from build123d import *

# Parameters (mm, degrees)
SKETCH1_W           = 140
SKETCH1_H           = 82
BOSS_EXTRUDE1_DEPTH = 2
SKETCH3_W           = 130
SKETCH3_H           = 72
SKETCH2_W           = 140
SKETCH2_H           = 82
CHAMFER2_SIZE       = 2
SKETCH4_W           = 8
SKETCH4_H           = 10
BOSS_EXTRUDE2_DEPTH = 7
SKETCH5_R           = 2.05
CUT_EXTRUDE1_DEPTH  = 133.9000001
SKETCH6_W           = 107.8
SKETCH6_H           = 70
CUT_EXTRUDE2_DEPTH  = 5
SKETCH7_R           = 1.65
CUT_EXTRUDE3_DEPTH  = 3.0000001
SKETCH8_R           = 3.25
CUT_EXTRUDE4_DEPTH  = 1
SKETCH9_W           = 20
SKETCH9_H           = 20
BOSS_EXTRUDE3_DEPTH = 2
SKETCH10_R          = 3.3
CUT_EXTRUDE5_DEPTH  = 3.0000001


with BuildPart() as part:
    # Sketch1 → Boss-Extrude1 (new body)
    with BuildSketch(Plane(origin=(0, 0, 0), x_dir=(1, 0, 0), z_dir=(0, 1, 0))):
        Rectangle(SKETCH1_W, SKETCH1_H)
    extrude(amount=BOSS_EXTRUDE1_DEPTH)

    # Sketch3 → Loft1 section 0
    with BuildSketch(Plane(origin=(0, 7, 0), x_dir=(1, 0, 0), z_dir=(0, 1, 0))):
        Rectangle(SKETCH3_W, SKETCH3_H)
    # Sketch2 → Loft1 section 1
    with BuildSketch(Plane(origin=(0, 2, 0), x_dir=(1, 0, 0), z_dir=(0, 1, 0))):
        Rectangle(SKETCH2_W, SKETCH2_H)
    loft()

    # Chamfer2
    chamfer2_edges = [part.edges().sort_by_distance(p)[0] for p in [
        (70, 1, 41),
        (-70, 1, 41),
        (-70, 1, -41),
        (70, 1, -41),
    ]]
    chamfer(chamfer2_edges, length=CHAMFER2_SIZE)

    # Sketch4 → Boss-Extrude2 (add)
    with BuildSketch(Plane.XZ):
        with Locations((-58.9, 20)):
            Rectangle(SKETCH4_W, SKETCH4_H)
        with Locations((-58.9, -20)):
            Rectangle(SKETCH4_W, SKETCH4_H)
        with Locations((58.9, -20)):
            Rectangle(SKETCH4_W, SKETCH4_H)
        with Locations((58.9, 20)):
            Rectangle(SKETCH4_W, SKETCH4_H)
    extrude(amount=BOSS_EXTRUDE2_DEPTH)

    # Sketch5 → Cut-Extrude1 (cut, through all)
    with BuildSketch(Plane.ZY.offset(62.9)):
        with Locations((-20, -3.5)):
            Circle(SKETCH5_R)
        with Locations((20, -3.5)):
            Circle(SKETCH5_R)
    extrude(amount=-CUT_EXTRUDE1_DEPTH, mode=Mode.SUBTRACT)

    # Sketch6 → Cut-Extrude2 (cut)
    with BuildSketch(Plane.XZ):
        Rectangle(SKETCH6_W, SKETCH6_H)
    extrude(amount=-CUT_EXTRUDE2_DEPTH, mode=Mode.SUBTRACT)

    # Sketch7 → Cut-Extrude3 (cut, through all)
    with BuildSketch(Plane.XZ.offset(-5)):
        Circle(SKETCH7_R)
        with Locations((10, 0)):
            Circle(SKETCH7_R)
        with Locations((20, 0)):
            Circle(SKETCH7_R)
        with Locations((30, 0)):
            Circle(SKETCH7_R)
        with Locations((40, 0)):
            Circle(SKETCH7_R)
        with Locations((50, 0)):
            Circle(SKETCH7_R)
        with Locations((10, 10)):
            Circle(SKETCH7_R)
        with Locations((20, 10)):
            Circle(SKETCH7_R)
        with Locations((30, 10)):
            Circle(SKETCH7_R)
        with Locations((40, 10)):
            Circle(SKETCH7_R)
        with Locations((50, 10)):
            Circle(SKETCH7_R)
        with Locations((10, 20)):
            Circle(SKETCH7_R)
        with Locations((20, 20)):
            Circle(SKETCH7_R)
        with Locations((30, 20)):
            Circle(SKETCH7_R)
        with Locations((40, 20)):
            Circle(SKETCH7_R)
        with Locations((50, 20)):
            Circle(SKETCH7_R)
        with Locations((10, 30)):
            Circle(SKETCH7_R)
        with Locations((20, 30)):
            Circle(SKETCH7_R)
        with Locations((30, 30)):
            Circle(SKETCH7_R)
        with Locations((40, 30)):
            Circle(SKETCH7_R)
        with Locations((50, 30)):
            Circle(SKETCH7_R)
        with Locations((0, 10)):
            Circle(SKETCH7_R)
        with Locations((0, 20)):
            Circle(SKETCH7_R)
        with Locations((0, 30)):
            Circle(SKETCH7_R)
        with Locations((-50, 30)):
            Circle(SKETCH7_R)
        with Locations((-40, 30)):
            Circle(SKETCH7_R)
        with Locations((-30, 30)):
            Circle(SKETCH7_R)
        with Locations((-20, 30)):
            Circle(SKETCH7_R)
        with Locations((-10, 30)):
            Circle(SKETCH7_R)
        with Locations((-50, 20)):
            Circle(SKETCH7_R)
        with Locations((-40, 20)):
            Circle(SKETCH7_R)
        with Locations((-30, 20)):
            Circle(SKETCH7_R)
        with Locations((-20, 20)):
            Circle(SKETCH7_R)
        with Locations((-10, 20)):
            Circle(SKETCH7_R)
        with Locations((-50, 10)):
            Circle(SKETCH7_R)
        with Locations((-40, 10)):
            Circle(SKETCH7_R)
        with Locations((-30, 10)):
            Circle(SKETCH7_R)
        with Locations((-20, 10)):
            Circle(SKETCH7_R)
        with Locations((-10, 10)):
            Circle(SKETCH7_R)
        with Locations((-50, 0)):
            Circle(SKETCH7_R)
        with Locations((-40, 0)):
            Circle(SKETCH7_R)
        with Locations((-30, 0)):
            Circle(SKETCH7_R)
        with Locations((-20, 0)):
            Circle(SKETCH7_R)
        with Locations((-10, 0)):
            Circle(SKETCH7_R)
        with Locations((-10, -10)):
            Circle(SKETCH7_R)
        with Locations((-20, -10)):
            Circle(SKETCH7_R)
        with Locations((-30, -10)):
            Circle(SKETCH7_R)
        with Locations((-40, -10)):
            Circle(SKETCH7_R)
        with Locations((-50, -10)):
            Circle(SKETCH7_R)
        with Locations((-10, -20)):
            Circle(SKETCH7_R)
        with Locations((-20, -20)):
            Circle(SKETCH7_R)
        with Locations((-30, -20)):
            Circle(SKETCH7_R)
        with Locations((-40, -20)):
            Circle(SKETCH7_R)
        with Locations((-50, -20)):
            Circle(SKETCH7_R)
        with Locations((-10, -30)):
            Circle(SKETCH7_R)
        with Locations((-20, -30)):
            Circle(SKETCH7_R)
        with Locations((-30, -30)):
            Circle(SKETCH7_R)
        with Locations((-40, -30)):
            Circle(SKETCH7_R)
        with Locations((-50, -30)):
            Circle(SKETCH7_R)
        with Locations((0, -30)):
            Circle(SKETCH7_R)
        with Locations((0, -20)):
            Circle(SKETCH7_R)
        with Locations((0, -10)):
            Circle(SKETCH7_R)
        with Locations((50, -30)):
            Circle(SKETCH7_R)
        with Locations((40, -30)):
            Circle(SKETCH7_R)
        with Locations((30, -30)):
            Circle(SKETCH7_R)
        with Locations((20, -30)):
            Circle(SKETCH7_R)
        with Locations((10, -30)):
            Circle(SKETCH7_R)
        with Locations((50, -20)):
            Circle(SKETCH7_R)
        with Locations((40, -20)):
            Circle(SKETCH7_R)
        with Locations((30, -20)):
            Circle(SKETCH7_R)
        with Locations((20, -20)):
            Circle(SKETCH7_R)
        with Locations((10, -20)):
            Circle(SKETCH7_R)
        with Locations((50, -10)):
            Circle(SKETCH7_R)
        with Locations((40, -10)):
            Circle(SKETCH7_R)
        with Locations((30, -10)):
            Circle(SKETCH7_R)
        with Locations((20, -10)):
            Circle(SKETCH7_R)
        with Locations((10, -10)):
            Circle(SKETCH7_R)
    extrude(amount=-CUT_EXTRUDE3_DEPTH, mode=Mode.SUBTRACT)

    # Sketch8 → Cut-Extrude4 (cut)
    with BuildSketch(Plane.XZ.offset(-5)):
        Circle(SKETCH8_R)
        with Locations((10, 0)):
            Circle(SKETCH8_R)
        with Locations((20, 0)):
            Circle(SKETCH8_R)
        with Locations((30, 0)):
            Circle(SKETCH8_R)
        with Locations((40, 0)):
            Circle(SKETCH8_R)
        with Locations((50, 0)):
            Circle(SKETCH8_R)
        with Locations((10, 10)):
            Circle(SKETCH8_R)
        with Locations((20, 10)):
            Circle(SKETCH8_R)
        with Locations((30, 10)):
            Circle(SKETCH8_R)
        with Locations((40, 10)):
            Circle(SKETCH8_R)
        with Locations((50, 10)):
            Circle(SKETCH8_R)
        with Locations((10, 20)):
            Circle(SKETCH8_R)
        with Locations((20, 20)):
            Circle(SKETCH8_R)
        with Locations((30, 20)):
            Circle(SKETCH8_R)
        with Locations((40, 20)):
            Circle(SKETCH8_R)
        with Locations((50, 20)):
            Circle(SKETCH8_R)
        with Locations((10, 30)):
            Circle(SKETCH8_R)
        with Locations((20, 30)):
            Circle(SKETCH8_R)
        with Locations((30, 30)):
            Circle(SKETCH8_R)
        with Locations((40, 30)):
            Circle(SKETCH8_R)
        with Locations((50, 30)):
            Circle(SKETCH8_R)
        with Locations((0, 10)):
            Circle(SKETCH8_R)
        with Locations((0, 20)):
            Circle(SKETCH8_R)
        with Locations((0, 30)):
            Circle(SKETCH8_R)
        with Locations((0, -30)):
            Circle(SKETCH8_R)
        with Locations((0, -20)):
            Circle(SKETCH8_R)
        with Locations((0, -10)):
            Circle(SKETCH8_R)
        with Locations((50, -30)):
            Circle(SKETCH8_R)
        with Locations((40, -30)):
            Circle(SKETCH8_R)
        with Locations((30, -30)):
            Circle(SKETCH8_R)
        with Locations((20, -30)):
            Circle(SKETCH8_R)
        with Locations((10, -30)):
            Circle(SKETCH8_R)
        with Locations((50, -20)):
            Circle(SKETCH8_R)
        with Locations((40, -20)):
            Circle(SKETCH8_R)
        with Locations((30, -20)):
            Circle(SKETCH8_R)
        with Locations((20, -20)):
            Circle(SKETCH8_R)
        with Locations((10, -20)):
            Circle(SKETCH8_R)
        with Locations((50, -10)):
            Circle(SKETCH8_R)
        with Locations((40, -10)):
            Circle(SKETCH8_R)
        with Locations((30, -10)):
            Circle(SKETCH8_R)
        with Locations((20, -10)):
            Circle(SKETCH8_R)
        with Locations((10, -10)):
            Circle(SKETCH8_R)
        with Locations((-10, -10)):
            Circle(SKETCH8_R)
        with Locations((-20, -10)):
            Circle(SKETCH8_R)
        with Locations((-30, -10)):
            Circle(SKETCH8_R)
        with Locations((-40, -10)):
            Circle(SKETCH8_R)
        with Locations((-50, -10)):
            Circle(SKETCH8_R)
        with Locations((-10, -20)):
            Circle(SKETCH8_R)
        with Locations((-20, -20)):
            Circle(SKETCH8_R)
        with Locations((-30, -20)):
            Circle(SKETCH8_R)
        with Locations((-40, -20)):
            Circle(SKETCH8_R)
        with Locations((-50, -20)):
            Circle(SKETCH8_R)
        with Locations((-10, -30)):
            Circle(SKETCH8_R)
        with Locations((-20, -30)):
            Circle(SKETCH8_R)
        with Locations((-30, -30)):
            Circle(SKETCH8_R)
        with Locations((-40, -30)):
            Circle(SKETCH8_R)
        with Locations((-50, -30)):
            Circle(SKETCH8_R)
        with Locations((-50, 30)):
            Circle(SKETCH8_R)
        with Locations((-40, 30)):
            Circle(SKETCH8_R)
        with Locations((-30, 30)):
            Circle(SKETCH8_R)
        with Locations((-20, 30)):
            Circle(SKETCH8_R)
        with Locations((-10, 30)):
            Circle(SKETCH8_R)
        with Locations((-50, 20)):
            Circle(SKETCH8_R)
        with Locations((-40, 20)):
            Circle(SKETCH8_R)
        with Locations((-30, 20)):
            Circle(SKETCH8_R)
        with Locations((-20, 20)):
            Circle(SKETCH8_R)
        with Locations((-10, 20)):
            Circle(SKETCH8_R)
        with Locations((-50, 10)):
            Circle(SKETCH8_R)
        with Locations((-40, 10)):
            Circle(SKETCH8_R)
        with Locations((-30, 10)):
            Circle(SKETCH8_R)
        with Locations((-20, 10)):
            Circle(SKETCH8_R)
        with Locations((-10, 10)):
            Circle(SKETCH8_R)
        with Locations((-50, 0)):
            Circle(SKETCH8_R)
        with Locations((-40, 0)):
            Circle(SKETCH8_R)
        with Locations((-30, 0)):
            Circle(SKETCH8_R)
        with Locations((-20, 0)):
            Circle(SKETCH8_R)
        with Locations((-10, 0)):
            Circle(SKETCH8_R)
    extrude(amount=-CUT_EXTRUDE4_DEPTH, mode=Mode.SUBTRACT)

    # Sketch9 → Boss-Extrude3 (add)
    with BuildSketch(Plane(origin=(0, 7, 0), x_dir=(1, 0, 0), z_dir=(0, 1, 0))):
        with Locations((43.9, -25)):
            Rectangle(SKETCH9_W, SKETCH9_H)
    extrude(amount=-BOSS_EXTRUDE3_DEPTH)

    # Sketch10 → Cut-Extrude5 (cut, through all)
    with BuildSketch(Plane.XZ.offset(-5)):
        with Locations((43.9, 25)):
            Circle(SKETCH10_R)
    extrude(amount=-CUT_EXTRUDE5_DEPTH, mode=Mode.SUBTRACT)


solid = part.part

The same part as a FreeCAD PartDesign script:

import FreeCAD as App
import Part
import Sketcher
from FreeCAD import Vector


def edges_at(feature, points):
    """Names of the edges that pass closest to the given points."""
    edges = feature.Shape.Edges
    near = lambda p: min(range(len(edges)), key=lambda i: edges[i].distToShape(Part.Vertex(*p))[0])
    return sorted({f"Edge{near(p) + 1}" for p in points})

doc = App.newDocument("Part")
body = doc.addObject("PartDesign::Body", "Body")

sketch1 = body.newObject("Sketcher::SketchObject", "Sketch")
sketch1.AttachmentSupport = (doc.getObject("XZ_Plane"), [""])
sketch1.MapMode = "FlatFace"
sketch1.addGeometry([
    Part.LineSegment(Vector(-70, -41, 0), Vector(-70, 41, 0)),
    Part.LineSegment(Vector(-70, 41, 0), Vector(70, 41, 0)),
    Part.LineSegment(Vector(70, 41, 0), Vector(70, -41, 0)),
    Part.LineSegment(Vector(70, -41, 0), Vector(-70, -41, 0)),
], False)
sketch1.addConstraint([
    Sketcher.Constraint("Coincident", 0, 2, 1, 1),
    Sketcher.Constraint("Coincident", 1, 2, 2, 1),
    Sketcher.Constraint("Coincident", 2, 2, 3, 1),
    Sketcher.Constraint("Coincident", 3, 2, 0, 1),
    Sketcher.Constraint("Vertical", 0),
    Sketcher.Constraint("Horizontal", 1),
    Sketcher.Constraint("Vertical", 2),
    Sketcher.Constraint("Horizontal", 3),
    Sketcher.Constraint("Symmetric", 0, 2, 2, 2, -1, 1),
    Sketcher.Constraint("DistanceX", 1, 1, 1, 2, 140.0),
    Sketcher.Constraint("DistanceY", 0, 1, 0, 2, 82.0),
])
pad1 = body.newObject("PartDesign::Pad", "Pad")
pad1.Profile = sketch1
pad1.Length = 2
pad1.Reversed = True

sketch2 = body.newObject("Sketcher::SketchObject", "Sketch001")
sketch2.AttachmentSupport = (doc.getObject("XZ_Plane"), [""])
sketch2.MapMode = "FlatFace"
sketch2.AttachmentOffset = App.Placement(Vector(0, 0, -7), App.Rotation())
sketch2.addGeometry([
    Part.LineSegment(Vector(-65, -36, 0), Vector(-65, 36, 0)),
    Part.LineSegment(Vector(-65, 36, 0), Vector(65, 36, 0)),
    Part.LineSegment(Vector(65, 36, 0), Vector(65, -36, 0)),
    Part.LineSegment(Vector(65, -36, 0), Vector(-65, -36, 0)),
], False)
sketch2.addConstraint([
    Sketcher.Constraint("Coincident", 0, 2, 1, 1),
    Sketcher.Constraint("Coincident", 1, 2, 2, 1),
    Sketcher.Constraint("Coincident", 2, 2, 3, 1),
    Sketcher.Constraint("Coincident", 3, 2, 0, 1),
    Sketcher.Constraint("Vertical", 0),
    Sketcher.Constraint("Horizontal", 1),
    Sketcher.Constraint("Vertical", 2),
    Sketcher.Constraint("Horizontal", 3),
    Sketcher.Constraint("Symmetric", 0, 2, 2, 2, -1, 1),
    Sketcher.Constraint("DistanceX", 1, 1, 1, 2, 130.0),
    Sketcher.Constraint("DistanceY", 0, 1, 0, 2, 72.0),
])

sketch3 = body.newObject("Sketcher::SketchObject", "Sketch002")
sketch3.AttachmentSupport = (doc.getObject("XZ_Plane"), [""])
sketch3.MapMode = "FlatFace"
sketch3.AttachmentOffset = App.Placement(Vector(0, 0, -2), App.Rotation())
sketch3.addGeometry([
    Part.LineSegment(Vector(-70, -41, 0), Vector(-70, 41, 0)),
    Part.LineSegment(Vector(-70, 41, 0), Vector(70, 41, 0)),
    Part.LineSegment(Vector(70, 41, 0), Vector(70, -41, 0)),
    Part.LineSegment(Vector(70, -41, 0), Vector(-70, -41, 0)),
], False)
sketch3.addConstraint([
    Sketcher.Constraint("Coincident", 0, 2, 1, 1),
    Sketcher.Constraint("Coincident", 1, 2, 2, 1),
    Sketcher.Constraint("Coincident", 2, 2, 3, 1),
    Sketcher.Constraint("Coincident", 3, 2, 0, 1),
    Sketcher.Constraint("Vertical", 0),
    Sketcher.Constraint("Horizontal", 1),
    Sketcher.Constraint("Vertical", 2),
    Sketcher.Constraint("Horizontal", 3),
    Sketcher.Constraint("Symmetric", 0, 2, 2, 2, -1, 1),
    Sketcher.Constraint("DistanceX", 1, 1, 1, 2, 140.0),
    Sketcher.Constraint("DistanceY", 0, 1, 0, 2, 82.0),
])

additiveloft = body.newObject("PartDesign::AdditiveLoft", "AdditiveLoft")
additiveloft.Profile = sketch2
additiveloft.Sections = [sketch3]
doc.recompute()

chamfer = body.newObject("PartDesign::Chamfer", "Chamfer")
chamfer.Base = (additiveloft, edges_at(additiveloft, [
    (70, 1, 41),
    (-70, 1, 41),
    (-70, 1, -41),
    (70, 1, -41),
]))
chamfer.Size = 2

sketch4 = body.newObject("Sketcher::SketchObject", "Sketch003")
sketch4.AttachmentSupport = (doc.getObject("XZ_Plane"), [""])
sketch4.MapMode = "FlatFace"
sketch4.addGeometry([
    Part.LineSegment(Vector(-62.9, 25, 0), Vector(-62.9, 15, 0)),
    Part.LineSegment(Vector(-62.9, 15, 0), Vector(-54.9, 15, 0)),
    Part.LineSegment(Vector(-54.9, 15, 0), Vector(-54.9, 25, 0)),
    Part.LineSegment(Vector(-54.9, 25, 0), Vector(-62.9, 25, 0)),
    Part.LineSegment(Vector(-62.9, -15, 0), Vector(-62.9, -25, 0)),
    Part.LineSegment(Vector(-62.9, -25, 0), Vector(-54.9, -25, 0)),
    Part.LineSegment(Vector(-54.9, -25, 0), Vector(-54.9, -15, 0)),
    Part.LineSegment(Vector(-54.9, -15, 0), Vector(-62.9, -15, 0)),
    Part.LineSegment(Vector(54.9, -15, 0), Vector(54.9, -25, 0)),
    Part.LineSegment(Vector(54.9, -25, 0), Vector(62.9, -25, 0)),
    Part.LineSegment(Vector(62.9, -25, 0), Vector(62.9, -15, 0)),
    Part.LineSegment(Vector(62.9, -15, 0), Vector(54.9, -15, 0)),
    Part.LineSegment(Vector(54.9, 25, 0), Vector(54.9, 15, 0)),
    Part.LineSegment(Vector(54.9, 15, 0), Vector(62.9, 15, 0)),
    Part.LineSegment(Vector(62.9, 15, 0), Vector(62.9, 25, 0)),
    Part.LineSegment(Vector(62.9, 25, 0), Vector(54.9, 25, 0)),
], False)
sketch4.addConstraint([
    Sketcher.Constraint("Coincident", 0, 2, 1, 1),
    Sketcher.Constraint("Coincident", 1, 2, 2, 1),
    Sketcher.Constraint("Coincident", 2, 2, 3, 1),
    Sketcher.Constraint("Coincident", 3, 2, 0, 1),
    Sketcher.Constraint("Coincident", 4, 2, 5, 1),
    Sketcher.Constraint("Coincident", 5, 2, 6, 1),
    Sketcher.Constraint("Coincident", 6, 2, 7, 1),
    Sketcher.Constraint("Coincident", 7, 2, 4, 1),
    Sketcher.Constraint("Coincident", 8, 2, 9, 1),
    Sketcher.Constraint("Coincident", 9, 2, 10, 1),
    Sketcher.Constraint("Coincident", 10, 2, 11, 1),
    Sketcher.Constraint("Coincident", 11, 2, 8, 1),
    Sketcher.Constraint("Coincident", 12, 2, 13, 1),
    Sketcher.Constraint("Coincident", 13, 2, 14, 1),
    Sketcher.Constraint("Coincident", 14, 2, 15, 1),
    Sketcher.Constraint("Coincident", 15, 2, 12, 1),
    Sketcher.Constraint("Vertical", 0),
    Sketcher.Constraint("Horizontal", 1),
    Sketcher.Constraint("Vertical", 2),
    Sketcher.Constraint("Horizontal", 3),
    Sketcher.Constraint("Vertical", 4),
    Sketcher.Constraint("Horizontal", 5),
    Sketcher.Constraint("Vertical", 6),
    Sketcher.Constraint("Horizontal", 7),
    Sketcher.Constraint("Vertical", 8),
    Sketcher.Constraint("Horizontal", 9),
    Sketcher.Constraint("Vertical", 10),
    Sketcher.Constraint("Horizontal", 11),
    Sketcher.Constraint("Vertical", 12),
    Sketcher.Constraint("Horizontal", 13),
    Sketcher.Constraint("Vertical", 14),
    Sketcher.Constraint("Horizontal", 15),
    Sketcher.Constraint("Symmetric", 2, 2, 8, 2, -1, 1),
    Sketcher.Constraint("Symmetric", 0, 2, 10, 2, -1, 1),
    Sketcher.Constraint("Symmetric", 6, 2, 12, 2, -1, 1),
    Sketcher.Constraint("Symmetric", 4, 2, 14, 2, -1, 1),
    Sketcher.Constraint("Symmetric", 5, 2, 8, 2, -2),
    Sketcher.Constraint("Symmetric", 7, 2, 10, 2, -2),
    Sketcher.Constraint("DistanceX", 1, 1, 1, 2, 8.0),
    Sketcher.Constraint("DistanceY", 0, 2, 0, 1, 10.0),
    Sketcher.Constraint("DistanceY", -1, 1, 0, 2, 15.0),
    Sketcher.Constraint("DistanceX", 0, 2, -1, 1, 62.9),
])
pad2 = body.newObject("PartDesign::Pad", "Pad001")
pad2.Profile = sketch4
pad2.Length = 7

sketch5 = body.newObject("Sketcher::SketchObject", "Sketch004")
sketch5.AttachmentSupport = (doc.getObject("YZ_Plane"), [""])
sketch5.MapMode = "FlatFace"
sketch5.AttachmentOffset = App.Placement(Vector(0, 0, -62.9), App.Rotation())
sketch5.addGeometry([
    Part.Circle(Vector(-3.5, -20, 0), Vector(0, 0, 1), 2.05),
    Part.Circle(Vector(-3.5, 20, 0), Vector(0, 0, 1), 2.05),
], False)
sketch5.addConstraint([
    Sketcher.Constraint("Equal", 0, 1),
    Sketcher.Constraint("Symmetric", 0, 3, 1, 3, -1),
    Sketcher.Constraint("Diameter", 0, 4.1),
    Sketcher.Constraint("DistanceY", 0, 3, -1, 1, 20.0),
    Sketcher.Constraint("DistanceX", 0, 3, -1, 1, 3.5),
])
pocket1 = body.newObject("PartDesign::Pocket", "Pocket")
pocket1.Profile = sketch5
pocket1.Type = "ThroughAll"
pocket1.Reversed = True

sketch6 = body.newObject("Sketcher::SketchObject", "Sketch005")
sketch6.AttachmentSupport = (doc.getObject("XZ_Plane"), [""])
sketch6.MapMode = "FlatFace"
sketch6.addGeometry([
    Part.LineSegment(Vector(-53.9, 35, 0), Vector(-53.9, -35, 0)),
    Part.LineSegment(Vector(-53.9, -35, 0), Vector(53.9, -35, 0)),
    Part.LineSegment(Vector(53.9, -35, 0), Vector(53.9, 35, 0)),
    Part.LineSegment(Vector(53.9, 35, 0), Vector(-53.9, 35, 0)),
], False)
sketch6.addConstraint([
    Sketcher.Constraint("Coincident", 0, 2, 1, 1),
    Sketcher.Constraint("Coincident", 1, 2, 2, 1),
    Sketcher.Constraint("Coincident", 2, 2, 3, 1),
    Sketcher.Constraint("Coincident", 3, 2, 0, 1),
    Sketcher.Constraint("Vertical", 0),
    Sketcher.Constraint("Horizontal", 1),
    Sketcher.Constraint("Vertical", 2),
    Sketcher.Constraint("Horizontal", 3),
    Sketcher.Constraint("Symmetric", 0, 2, 2, 2, -1, 1),
    Sketcher.Constraint("DistanceY", 0, 2, 0, 1, 70.0),
    Sketcher.Constraint("DistanceX", 1, 1, 1, 2, 107.8),
])
pocket2 = body.newObject("PartDesign::Pocket", "Pocket001")
pocket2.Profile = sketch6
pocket2.Length = 5

sketch7 = body.newObject("Sketcher::SketchObject", "Sketch006")
sketch7.AttachmentSupport = (doc.getObject("XZ_Plane"), [""])
sketch7.MapMode = "FlatFace"
sketch7.AttachmentOffset = App.Placement(Vector(0, 0, -5), App.Rotation())
sketch7.addGeometry([
    Part.Circle(Vector(0, 0, 0), Vector(0, 0, 1), 1.65),
    Part.Circle(Vector(10, 0, 0), Vector(0, 0, 1), 1.65),
    Part.Circle(Vector(20, 0, 0), Vector(0, 0, 1), 1.65),
    Part.Circle(Vector(30, 0, 0), Vector(0, 0, 1), 1.65),
    Part.Circle(Vector(40, 0, 0), Vector(0, 0, 1), 1.65),
    Part.Circle(Vector(50, 0, 0), Vector(0, 0, 1), 1.65),
    Part.Circle(Vector(10, 10, 0), Vector(0, 0, 1), 1.65),
    Part.Circle(Vector(20, 10, 0), Vector(0, 0, 1), 1.65),
    Part.Circle(Vector(30, 10, 0), Vector(0, 0, 1), 1.65),
    Part.Circle(Vector(40, 10, 0), Vector(0, 0, 1), 1.65),
    Part.Circle(Vector(50, 10, 0), Vector(0, 0, 1), 1.65),
    Part.Circle(Vector(10, 20, 0), Vector(0, 0, 1), 1.65),
    Part.Circle(Vector(20, 20, 0), Vector(0, 0, 1), 1.65),
    Part.Circle(Vector(30, 20, 0), Vector(0, 0, 1), 1.65),
    Part.Circle(Vector(40, 20, 0), Vector(0, 0, 1), 1.65),
    Part.Circle(Vector(50, 20, 0), Vector(0, 0, 1), 1.65),
    Part.Circle(Vector(10, 30, 0), Vector(0, 0, 1), 1.65),
    Part.Circle(Vector(20, 30, 0), Vector(0, 0, 1), 1.65),
    Part.Circle(Vector(30, 30, 0), Vector(0, 0, 1), 1.65),
    Part.Circle(Vector(40, 30, 0), Vector(0, 0, 1), 1.65),
    Part.Circle(Vector(50, 30, 0), Vector(0, 0, 1), 1.65),
    Part.Circle(Vector(0, 10, 0), Vector(0, 0, 1), 1.65),
    Part.Circle(Vector(0, 20, 0), Vector(0, 0, 1), 1.65),
    Part.Circle(Vector(0, 30, 0), Vector(0, 0, 1), 1.65),
    Part.Circle(Vector(-50, 30, 0), Vector(0, 0, 1), 1.65),
    Part.Circle(Vector(-40, 30, 0), Vector(0, 0, 1), 1.65),
    Part.Circle(Vector(-30, 30, 0), Vector(0, 0, 1), 1.65),
    Part.Circle(Vector(-20, 30, 0), Vector(0, 0, 1), 1.65),
    Part.Circle(Vector(-10, 30, 0), Vector(0, 0, 1), 1.65),
    Part.Circle(Vector(-50, 20, 0), Vector(0, 0, 1), 1.65),
    Part.Circle(Vector(-40, 20, 0), Vector(0, 0, 1), 1.65),
    Part.Circle(Vector(-30, 20, 0), Vector(0, 0, 1), 1.65),
    Part.Circle(Vector(-20, 20, 0), Vector(0, 0, 1), 1.65),
    Part.Circle(Vector(-10, 20, 0), Vector(0, 0, 1), 1.65),
    Part.Circle(Vector(-50, 10, 0), Vector(0, 0, 1), 1.65),
    Part.Circle(Vector(-40, 10, 0), Vector(0, 0, 1), 1.65),
    Part.Circle(Vector(-30, 10, 0), Vector(0, 0, 1), 1.65),
    Part.Circle(Vector(-20, 10, 0), Vector(0, 0, 1), 1.65),
    Part.Circle(Vector(-10, 10, 0), Vector(0, 0, 1), 1.65),
    Part.Circle(Vector(-50, 0, 0), Vector(0, 0, 1), 1.65),
    Part.Circle(Vector(-40, 0, 0), Vector(0, 0, 1), 1.65),
    Part.Circle(Vector(-30, 0, 0), Vector(0, 0, 1), 1.65),
    Part.Circle(Vector(-20, 0, 0), Vector(0, 0, 1), 1.65),
    Part.Circle(Vector(-10, 0, 0), Vector(0, 0, 1), 1.65),
    Part.Circle(Vector(-10, -10, 0), Vector(0, 0, 1), 1.65),
    Part.Circle(Vector(-20, -10, 0), Vector(0, 0, 1), 1.65),
    Part.Circle(Vector(-30, -10, 0), Vector(0, 0, 1), 1.65),
    Part.Circle(Vector(-40, -10, 0), Vector(0, 0, 1), 1.65),
    Part.Circle(Vector(-50, -10, 0), Vector(0, 0, 1), 1.65),
    Part.Circle(Vector(-10, -20, 0), Vector(0, 0, 1), 1.65),
    Part.Circle(Vector(-20, -20, 0), Vector(0, 0, 1), 1.65),
    Part.Circle(Vector(-30, -20, 0), Vector(0, 0, 1), 1.65),
    Part.Circle(Vector(-40, -20, 0), Vector(0, 0, 1), 1.65),
    Part.Circle(Vector(-50, -20, 0), Vector(0, 0, 1), 1.65),
    Part.Circle(Vector(-10, -30, 0), Vector(0, 0, 1), 1.65),
    Part.Circle(Vector(-20, -30, 0), Vector(0, 0, 1), 1.65),
    Part.Circle(Vector(-30, -30, 0), Vector(0, 0, 1), 1.65),
    Part.Circle(Vector(-40, -30, 0), Vector(0, 0, 1), 1.65),
    Part.Circle(Vector(-50, -30, 0), Vector(0, 0, 1), 1.65),
    Part.Circle(Vector(0, -30, 0), Vector(0, 0, 1), 1.65),
    Part.Circle(Vector(0, -20, 0), Vector(0, 0, 1), 1.65),
    Part.Circle(Vector(0, -10, 0), Vector(0, 0, 1), 1.65),
    Part.Circle(Vector(50, -30, 0), Vector(0, 0, 1), 1.65),
    Part.Circle(Vector(40, -30, 0), Vector(0, 0, 1), 1.65),
    Part.Circle(Vector(30, -30, 0), Vector(0, 0, 1), 1.65),
    Part.Circle(Vector(20, -30, 0), Vector(0, 0, 1), 1.65),
    Part.Circle(Vector(10, -30, 0), Vector(0, 0, 1), 1.65),
    Part.Circle(Vector(50, -20, 0), Vector(0, 0, 1), 1.65),
    Part.Circle(Vector(40, -20, 0), Vector(0, 0, 1), 1.65),
    Part.Circle(Vector(30, -20, 0), Vector(0, 0, 1), 1.65),
    Part.Circle(Vector(20, -20, 0), Vector(0, 0, 1), 1.65),
    Part.Circle(Vector(10, -20, 0), Vector(0, 0, 1), 1.65),
    Part.Circle(Vector(50, -10, 0), Vector(0, 0, 1), 1.65),
    Part.Circle(Vector(40, -10, 0), Vector(0, 0, 1), 1.65),
    Part.Circle(Vector(30, -10, 0), Vector(0, 0, 1), 1.65),
    Part.Circle(Vector(20, -10, 0), Vector(0, 0, 1), 1.65),
    Part.Circle(Vector(10, -10, 0), Vector(0, 0, 1), 1.65),
], False)
sketch7.addConstraint([
    Sketcher.Constraint("Coincident", 0, 3, -1, 1),
    Sketcher.Constraint("Equal", 0, 1),
    Sketcher.Constraint("Equal", 1, 2),
    Sketcher.Constraint("Equal", 2, 3),
    Sketcher.Constraint("Equal", 3, 4),
    Sketcher.Constraint("Equal", 4, 5),
    Sketcher.Constraint("Equal", 5, 6),
    Sketcher.Constraint("Equal", 6, 7),
    Sketcher.Constraint("Equal", 7, 8),
    Sketcher.Constraint("Equal", 8, 9),
    Sketcher.Constraint("Equal", 9, 10),
    Sketcher.Constraint("Equal", 10, 11),
    Sketcher.Constraint("Equal", 11, 12),
    Sketcher.Constraint("Equal", 12, 13),
    Sketcher.Constraint("Equal", 13, 14),
    Sketcher.Constraint("Equal", 14, 15),
    Sketcher.Constraint("Equal", 15, 16),
    Sketcher.Constraint("Equal", 16, 17),
    Sketcher.Constraint("Equal", 17, 18),
    Sketcher.Constraint("Equal", 18, 19),
    Sketcher.Constraint("Equal", 19, 20),
    Sketcher.Constraint("Equal", 20, 21),
    Sketcher.Constraint("Equal", 21, 22),
    Sketcher.Constraint("Equal", 22, 23),
    Sketcher.Constraint("Equal", 23, 24),
    Sketcher.Constraint("Equal", 24, 25),
    Sketcher.Constraint("Equal", 25, 26),
    Sketcher.Constraint("Equal", 26, 27),
    Sketcher.Constraint("Equal", 27, 28),
    Sketcher.Constraint("Equal", 28, 29),
    Sketcher.Constraint("Equal", 29, 30),
    Sketcher.Constraint("Equal", 30, 31),
    Sketcher.Constraint("Equal", 31, 32),
    Sketcher.Constraint("Equal", 32, 33),
    Sketcher.Constraint("Equal", 33, 34),
    Sketcher.Constraint("Equal", 34, 35),
    Sketcher.Constraint("Equal", 35, 36),
    Sketcher.Constraint("Equal", 36, 37),
    Sketcher.Constraint("Equal", 37, 38),
    Sketcher.Constraint("Equal", 38, 39),
    Sketcher.Constraint("Equal", 39, 40),
    Sketcher.Constraint("Equal", 40, 41),
    Sketcher.Constraint("Equal", 41, 42),
    Sketcher.Constraint("Equal", 42, 43),
    Sketcher.Constraint("Equal", 43, 44),
    Sketcher.Constraint("Equal", 44, 45),
    Sketcher.Constraint("Equal", 45, 46),
    Sketcher.Constraint("Equal", 46, 47),
    Sketcher.Constraint("Equal", 47, 48),
    Sketcher.Constraint("Equal", 48, 49),
    Sketcher.Constraint("Equal", 49, 50),
    Sketcher.Constraint("Equal", 50, 51),
    Sketcher.Constraint("Equal", 51, 52),
    Sketcher.Constraint("Equal", 52, 53),
    Sketcher.Constraint("Equal", 53, 54),
    Sketcher.Constraint("Equal", 54, 55),
    Sketcher.Constraint("Equal", 55, 56),
    Sketcher.Constraint("Equal", 56, 57),
    Sketcher.Constraint("Equal", 57, 58),
    Sketcher.Constraint("Equal", 58, 59),
    Sketcher.Constraint("Equal", 59, 60),
    Sketcher.Constraint("Equal", 60, 61),
    Sketcher.Constraint("Equal", 61, 62),
    Sketcher.Constraint("Equal", 62, 63),
    Sketcher.Constraint("Equal", 63, 64),
    Sketcher.Constraint("Equal", 64, 65),
    Sketcher.Constraint("Equal", 65, 66),
    Sketcher.Constraint("Equal", 66, 67),
    Sketcher.Constraint("Equal", 67, 68),
    Sketcher.Constraint("Equal", 68, 69),
    Sketcher.Constraint("Equal", 69, 70),
    Sketcher.Constraint("Equal", 70, 71),
    Sketcher.Constraint("Equal", 71, 72),
    Sketcher.Constraint("Equal", 72, 73),
    Sketcher.Constraint("Equal", 73, 74),
    Sketcher.Constraint("Equal", 74, 75),
    Sketcher.Constraint("Equal", 75, 76),
    Sketcher.Constraint("Symmetric", 5, 3, 39, 3, -1, 1),
    Sketcher.Constraint("Symmetric", 4, 3, 40, 3, -1, 1),
    Sketcher.Constraint("Symmetric", 3, 3, 41, 3, -1, 1),
    Sketcher.Constraint("Symmetric", 2, 3, 42, 3, -1, 1),
    Sketcher.Constraint("Symmetric", 1, 3, 43, 3, -1, 1),
    Sketcher.Constraint("Symmetric", 6, 3, 44, 3, -1, 1),
    Sketcher.Constraint("Symmetric", 7, 3, 45, 3, -1, 1),
    Sketcher.Constraint("Symmetric", 8, 3, 46, 3, -1, 1),
    Sketcher.Constraint("Symmetric", 9, 3, 47, 3, -1, 1),
    Sketcher.Constraint("Symmetric", 10, 3, 48, 3, -1, 1),
    Sketcher.Constraint("Symmetric", 11, 3, 49, 3, -1, 1),
    Sketcher.Constraint("Symmetric", 12, 3, 50, 3, -1, 1),
    Sketcher.Constraint("Symmetric", 13, 3, 51, 3, -1, 1),
    Sketcher.Constraint("Symmetric", 14, 3, 52, 3, -1, 1),
    Sketcher.Constraint("Symmetric", 15, 3, 53, 3, -1, 1),
    Sketcher.Constraint("Symmetric", 16, 3, 54, 3, -1, 1),
    Sketcher.Constraint("Symmetric", 17, 3, 55, 3, -1, 1),
    Sketcher.Constraint("Symmetric", 18, 3, 56, 3, -1, 1),
    Sketcher.Constraint("Symmetric", 19, 3, 57, 3, -1, 1),
    Sketcher.Constraint("Symmetric", 20, 3, 58, 3, -1, 1),
    Sketcher.Constraint("Symmetric", 23, 3, 59, 3, -1, 1),
    Sketcher.Constraint("Symmetric", 22, 3, 60, 3, -1, 1),
    Sketcher.Constraint("Symmetric", 21, 3, 61, 3, -1, 1),
    Sketcher.Constraint("Symmetric", 24, 3, 62, 3, -1, 1),
    Sketcher.Constraint("Symmetric", 25, 3, 63, 3, -1, 1),
    Sketcher.Constraint("Symmetric", 26, 3, 64, 3, -1, 1),
    Sketcher.Constraint("Symmetric", 27, 3, 65, 3, -1, 1),
    Sketcher.Constraint("Symmetric", 28, 3, 66, 3, -1, 1),
    Sketcher.Constraint("Symmetric", 29, 3, 67, 3, -1, 1),
    Sketcher.Constraint("Symmetric", 30, 3, 68, 3, -1, 1),
    Sketcher.Constraint("Symmetric", 31, 3, 69, 3, -1, 1),
    Sketcher.Constraint("Symmetric", 32, 3, 70, 3, -1, 1),
    Sketcher.Constraint("Symmetric", 33, 3, 71, 3, -1, 1),
    Sketcher.Constraint("Symmetric", 34, 3, 72, 3, -1, 1),
    Sketcher.Constraint("Symmetric", 35, 3, 73, 3, -1, 1),
    Sketcher.Constraint("Symmetric", 36, 3, 74, 3, -1, 1),
    Sketcher.Constraint("Symmetric", 37, 3, 75, 3, -1, 1),
    Sketcher.Constraint("Symmetric", 38, 3, 76, 3, -1, 1),
    Sketcher.Constraint("Symmetric", 20, 3, 24, 3, -2),
    Sketcher.Constraint("Symmetric", 19, 3, 25, 3, -2),
    Sketcher.Constraint("Symmetric", 18, 3, 26, 3, -2),
    Sketcher.Constraint("Symmetric", 17, 3, 27, 3, -2),
    Sketcher.Constraint("Symmetric", 16, 3, 28, 3, -2),
    Sketcher.Constraint("Symmetric", 15, 3, 29, 3, -2),
    Sketcher.Constraint("Symmetric", 14, 3, 30, 3, -2),
    Sketcher.Constraint("Symmetric", 13, 3, 31, 3, -2),
    Sketcher.Constraint("Symmetric", 12, 3, 32, 3, -2),
    Sketcher.Constraint("Symmetric", 11, 3, 33, 3, -2),
    Sketcher.Constraint("Symmetric", 10, 3, 34, 3, -2),
    Sketcher.Constraint("Symmetric", 9, 3, 35, 3, -2),
    Sketcher.Constraint("Symmetric", 8, 3, 36, 3, -2),
    Sketcher.Constraint("Symmetric", 7, 3, 37, 3, -2),
    Sketcher.Constraint("Symmetric", 6, 3, 38, 3, -2),
    Sketcher.Constraint("PointOnObject", 1, 3, -1),
    Sketcher.Constraint("PointOnObject", 2, 3, -1),
    Sketcher.Constraint("PointOnObject", 3, 3, -1),
    Sketcher.Constraint("PointOnObject", 4, 3, -1),
    Sketcher.Constraint("PointOnObject", 5, 3, -1),
    Sketcher.Constraint("PointOnObject", 21, 3, -2),
    Sketcher.Constraint("PointOnObject", 22, 3, -2),
    Sketcher.Constraint("PointOnObject", 23, 3, -2),
    Sketcher.Constraint("Horizontal", 6, 3, 7, 3),
    Sketcher.Constraint("Horizontal", 7, 3, 8, 3),
    Sketcher.Constraint("Horizontal", 8, 3, 9, 3),
    Sketcher.Constraint("Horizontal", 9, 3, 10, 3),
    Sketcher.Constraint("Horizontal", 11, 3, 12, 3),
    Sketcher.Constraint("Horizontal", 12, 3, 13, 3),
    Sketcher.Constraint("Horizontal", 13, 3, 14, 3),
    Sketcher.Constraint("Horizontal", 14, 3, 15, 3),
    Sketcher.Constraint("Horizontal", 16, 3, 17, 3),
    Sketcher.Constraint("Horizontal", 17, 3, 18, 3),
    Sketcher.Constraint("Horizontal", 18, 3, 19, 3),
    Sketcher.Constraint("Horizontal", 19, 3, 20, 3),
    Sketcher.Constraint("Horizontal", 10, 3, 21, 3),
    Sketcher.Constraint("Horizontal", 15, 3, 22, 3),
    Sketcher.Constraint("Horizontal", 20, 3, 23, 3),
    Sketcher.Constraint("Vertical", 1, 3, 6, 3),
    Sketcher.Constraint("Vertical", 2, 3, 7, 3),
    Sketcher.Constraint("Vertical", 3, 3, 8, 3),
    Sketcher.Constraint("Vertical", 4, 3, 9, 3),
    Sketcher.Constraint("Vertical", 5, 3, 10, 3),
    Sketcher.Constraint("Vertical", 6, 3, 11, 3),
    Sketcher.Constraint("Vertical", 7, 3, 12, 3),
    Sketcher.Constraint("Vertical", 8, 3, 13, 3),
    Sketcher.Constraint("Vertical", 9, 3, 14, 3),
    Sketcher.Constraint("Vertical", 10, 3, 15, 3),
    Sketcher.Constraint("Vertical", 11, 3, 16, 3),
    Sketcher.Constraint("Vertical", 12, 3, 17, 3),
    Sketcher.Constraint("Vertical", 13, 3, 18, 3),
    Sketcher.Constraint("Vertical", 14, 3, 19, 3),
    Sketcher.Constraint("Vertical", 15, 3, 20, 3),
    Sketcher.Constraint("Diameter", 0, 3.3),
    Sketcher.Constraint("DistanceX", -1, 1, 1, 3, 10.0),
    Sketcher.Constraint("DistanceX", -1, 1, 2, 3, 20.0),
    Sketcher.Constraint("DistanceX", -1, 1, 3, 3, 30.0),
    Sketcher.Constraint("DistanceX", -1, 1, 4, 3, 40.0),
    Sketcher.Constraint("DistanceX", -1, 1, 5, 3, 50.0),
    Sketcher.Constraint("DistanceY", -1, 1, 6, 3, 10.0),
    Sketcher.Constraint("DistanceY", -1, 1, 11, 3, 20.0),
    Sketcher.Constraint("DistanceY", -1, 1, 16, 3, 30.0),
])
pocket3 = body.newObject("PartDesign::Pocket", "Pocket002")
pocket3.Profile = sketch7
pocket3.Type = "ThroughAll"

sketch8 = body.newObject("Sketcher::SketchObject", "Sketch007")
sketch8.AttachmentSupport = (doc.getObject("XZ_Plane"), [""])
sketch8.MapMode = "FlatFace"
sketch8.AttachmentOffset = App.Placement(Vector(0, 0, -5), App.Rotation())
sketch8.addGeometry([
    Part.Circle(Vector(0, 0, 0), Vector(0, 0, 1), 3.25),
    Part.Circle(Vector(10, 0, 0), Vector(0, 0, 1), 3.25),
    Part.Circle(Vector(20, 0, 0), Vector(0, 0, 1), 3.25),
    Part.Circle(Vector(30, 0, 0), Vector(0, 0, 1), 3.25),
    Part.Circle(Vector(40, 0, 0), Vector(0, 0, 1), 3.25),
    Part.Circle(Vector(50, 0, 0), Vector(0, 0, 1), 3.25),
    Part.Circle(Vector(10, 10, 0), Vector(0, 0, 1), 3.25),
    Part.Circle(Vector(20, 10, 0), Vector(0, 0, 1), 3.25),
    Part.Circle(Vector(30, 10, 0), Vector(0, 0, 1), 3.25),
    Part.Circle(Vector(40, 10, 0), Vector(0, 0, 1), 3.25),
    Part.Circle(Vector(50, 10, 0), Vector(0, 0, 1), 3.25),
    Part.Circle(Vector(10, 20, 0), Vector(0, 0, 1), 3.25),
    Part.Circle(Vector(20, 20, 0), Vector(0, 0, 1), 3.25),
    Part.Circle(Vector(30, 20, 0), Vector(0, 0, 1), 3.25),
    Part.Circle(Vector(40, 20, 0), Vector(0, 0, 1), 3.25),
    Part.Circle(Vector(50, 20, 0), Vector(0, 0, 1), 3.25),
    Part.Circle(Vector(10, 30, 0), Vector(0, 0, 1), 3.25),
    Part.Circle(Vector(20, 30, 0), Vector(0, 0, 1), 3.25),
    Part.Circle(Vector(30, 30, 0), Vector(0, 0, 1), 3.25),
    Part.Circle(Vector(40, 30, 0), Vector(0, 0, 1), 3.25),
    Part.Circle(Vector(50, 30, 0), Vector(0, 0, 1), 3.25),
    Part.Circle(Vector(0, 10, 0), Vector(0, 0, 1), 3.25),
    Part.Circle(Vector(0, 20, 0), Vector(0, 0, 1), 3.25),
    Part.Circle(Vector(0, 30, 0), Vector(0, 0, 1), 3.25),
    Part.Circle(Vector(0, -30, 0), Vector(0, 0, 1), 3.25),
    Part.Circle(Vector(0, -20, 0), Vector(0, 0, 1), 3.25),
    Part.Circle(Vector(0, -10, 0), Vector(0, 0, 1), 3.25),
    Part.Circle(Vector(50, -30, 0), Vector(0, 0, 1), 3.25),
    Part.Circle(Vector(40, -30, 0), Vector(0, 0, 1), 3.25),
    Part.Circle(Vector(30, -30, 0), Vector(0, 0, 1), 3.25),
    Part.Circle(Vector(20, -30, 0), Vector(0, 0, 1), 3.25),
    Part.Circle(Vector(10, -30, 0), Vector(0, 0, 1), 3.25),
    Part.Circle(Vector(50, -20, 0), Vector(0, 0, 1), 3.25),
    Part.Circle(Vector(40, -20, 0), Vector(0, 0, 1), 3.25),
    Part.Circle(Vector(30, -20, 0), Vector(0, 0, 1), 3.25),
    Part.Circle(Vector(20, -20, 0), Vector(0, 0, 1), 3.25),
    Part.Circle(Vector(10, -20, 0), Vector(0, 0, 1), 3.25),
    Part.Circle(Vector(50, -10, 0), Vector(0, 0, 1), 3.25),
    Part.Circle(Vector(40, -10, 0), Vector(0, 0, 1), 3.25),
    Part.Circle(Vector(30, -10, 0), Vector(0, 0, 1), 3.25),
    Part.Circle(Vector(20, -10, 0), Vector(0, 0, 1), 3.25),
    Part.Circle(Vector(10, -10, 0), Vector(0, 0, 1), 3.25),
    Part.Circle(Vector(-10, -10, 0), Vector(0, 0, 1), 3.25),
    Part.Circle(Vector(-20, -10, 0), Vector(0, 0, 1), 3.25),
    Part.Circle(Vector(-30, -10, 0), Vector(0, 0, 1), 3.25),
    Part.Circle(Vector(-40, -10, 0), Vector(0, 0, 1), 3.25),
    Part.Circle(Vector(-50, -10, 0), Vector(0, 0, 1), 3.25),
    Part.Circle(Vector(-10, -20, 0), Vector(0, 0, 1), 3.25),
    Part.Circle(Vector(-20, -20, 0), Vector(0, 0, 1), 3.25),
    Part.Circle(Vector(-30, -20, 0), Vector(0, 0, 1), 3.25),
    Part.Circle(Vector(-40, -20, 0), Vector(0, 0, 1), 3.25),
    Part.Circle(Vector(-50, -20, 0), Vector(0, 0, 1), 3.25),
    Part.Circle(Vector(-10, -30, 0), Vector(0, 0, 1), 3.25),
    Part.Circle(Vector(-20, -30, 0), Vector(0, 0, 1), 3.25),
    Part.Circle(Vector(-30, -30, 0), Vector(0, 0, 1), 3.25),
    Part.Circle(Vector(-40, -30, 0), Vector(0, 0, 1), 3.25),
    Part.Circle(Vector(-50, -30, 0), Vector(0, 0, 1), 3.25),
    Part.Circle(Vector(-50, 30, 0), Vector(0, 0, 1), 3.25),
    Part.Circle(Vector(-40, 30, 0), Vector(0, 0, 1), 3.25),
    Part.Circle(Vector(-30, 30, 0), Vector(0, 0, 1), 3.25),
    Part.Circle(Vector(-20, 30, 0), Vector(0, 0, 1), 3.25),
    Part.Circle(Vector(-10, 30, 0), Vector(0, 0, 1), 3.25),
    Part.Circle(Vector(-50, 20, 0), Vector(0, 0, 1), 3.25),
    Part.Circle(Vector(-40, 20, 0), Vector(0, 0, 1), 3.25),
    Part.Circle(Vector(-30, 20, 0), Vector(0, 0, 1), 3.25),
    Part.Circle(Vector(-20, 20, 0), Vector(0, 0, 1), 3.25),
    Part.Circle(Vector(-10, 20, 0), Vector(0, 0, 1), 3.25),
    Part.Circle(Vector(-50, 10, 0), Vector(0, 0, 1), 3.25),
    Part.Circle(Vector(-40, 10, 0), Vector(0, 0, 1), 3.25),
    Part.Circle(Vector(-30, 10, 0), Vector(0, 0, 1), 3.25),
    Part.Circle(Vector(-20, 10, 0), Vector(0, 0, 1), 3.25),
    Part.Circle(Vector(-10, 10, 0), Vector(0, 0, 1), 3.25),
    Part.Circle(Vector(-50, 0, 0), Vector(0, 0, 1), 3.25),
    Part.Circle(Vector(-40, 0, 0), Vector(0, 0, 1), 3.25),
    Part.Circle(Vector(-30, 0, 0), Vector(0, 0, 1), 3.25),
    Part.Circle(Vector(-20, 0, 0), Vector(0, 0, 1), 3.25),
    Part.Circle(Vector(-10, 0, 0), Vector(0, 0, 1), 3.25),
], False)
sketch8.addConstraint([
    Sketcher.Constraint("Coincident", 0, 3, -1, 1),
    Sketcher.Constraint("Equal", 0, 1),
    Sketcher.Constraint("Equal", 1, 2),
    Sketcher.Constraint("Equal", 2, 3),
    Sketcher.Constraint("Equal", 3, 4),
    Sketcher.Constraint("Equal", 4, 5),
    Sketcher.Constraint("Equal", 5, 6),
    Sketcher.Constraint("Equal", 6, 7),
    Sketcher.Constraint("Equal", 7, 8),
    Sketcher.Constraint("Equal", 8, 9),
    Sketcher.Constraint("Equal", 9, 10),
    Sketcher.Constraint("Equal", 10, 11),
    Sketcher.Constraint("Equal", 11, 12),
    Sketcher.Constraint("Equal", 12, 13),
    Sketcher.Constraint("Equal", 13, 14),
    Sketcher.Constraint("Equal", 14, 15),
    Sketcher.Constraint("Equal", 15, 16),
    Sketcher.Constraint("Equal", 16, 17),
    Sketcher.Constraint("Equal", 17, 18),
    Sketcher.Constraint("Equal", 18, 19),
    Sketcher.Constraint("Equal", 19, 20),
    Sketcher.Constraint("Equal", 20, 21),
    Sketcher.Constraint("Equal", 21, 22),
    Sketcher.Constraint("Equal", 22, 23),
    Sketcher.Constraint("Equal", 23, 24),
    Sketcher.Constraint("Equal", 24, 25),
    Sketcher.Constraint("Equal", 25, 26),
    Sketcher.Constraint("Equal", 26, 27),
    Sketcher.Constraint("Equal", 27, 28),
    Sketcher.Constraint("Equal", 28, 29),
    Sketcher.Constraint("Equal", 29, 30),
    Sketcher.Constraint("Equal", 30, 31),
    Sketcher.Constraint("Equal", 31, 32),
    Sketcher.Constraint("Equal", 32, 33),
    Sketcher.Constraint("Equal", 33, 34),
    Sketcher.Constraint("Equal", 34, 35),
    Sketcher.Constraint("Equal", 35, 36),
    Sketcher.Constraint("Equal", 36, 37),
    Sketcher.Constraint("Equal", 37, 38),
    Sketcher.Constraint("Equal", 38, 39),
    Sketcher.Constraint("Equal", 39, 40),
    Sketcher.Constraint("Equal", 40, 41),
    Sketcher.Constraint("Equal", 41, 42),
    Sketcher.Constraint("Equal", 42, 43),
    Sketcher.Constraint("Equal", 43, 44),
    Sketcher.Constraint("Equal", 44, 45),
    Sketcher.Constraint("Equal", 45, 46),
    Sketcher.Constraint("Equal", 46, 47),
    Sketcher.Constraint("Equal", 47, 48),
    Sketcher.Constraint("Equal", 48, 49),
    Sketcher.Constraint("Equal", 49, 50),
    Sketcher.Constraint("Equal", 50, 51),
    Sketcher.Constraint("Equal", 51, 52),
    Sketcher.Constraint("Equal", 52, 53),
    Sketcher.Constraint("Equal", 53, 54),
    Sketcher.Constraint("Equal", 54, 55),
    Sketcher.Constraint("Equal", 55, 56),
    Sketcher.Constraint("Equal", 56, 57),
    Sketcher.Constraint("Equal", 57, 58),
    Sketcher.Constraint("Equal", 58, 59),
    Sketcher.Constraint("Equal", 59, 60),
    Sketcher.Constraint("Equal", 60, 61),
    Sketcher.Constraint("Equal", 61, 62),
    Sketcher.Constraint("Equal", 62, 63),
    Sketcher.Constraint("Equal", 63, 64),
    Sketcher.Constraint("Equal", 64, 65),
    Sketcher.Constraint("Equal", 65, 66),
    Sketcher.Constraint("Equal", 66, 67),
    Sketcher.Constraint("Equal", 67, 68),
    Sketcher.Constraint("Equal", 68, 69),
    Sketcher.Constraint("Equal", 69, 70),
    Sketcher.Constraint("Equal", 70, 71),
    Sketcher.Constraint("Equal", 71, 72),
    Sketcher.Constraint("Equal", 72, 73),
    Sketcher.Constraint("Equal", 73, 74),
    Sketcher.Constraint("Equal", 74, 75),
    Sketcher.Constraint("Equal", 75, 76),
    Sketcher.Constraint("Symmetric", 23, 3, 24, 3, -1, 1),
    Sketcher.Constraint("Symmetric", 22, 3, 25, 3, -1, 1),
    Sketcher.Constraint("Symmetric", 21, 3, 26, 3, -1, 1),
    Sketcher.Constraint("Symmetric", 6, 3, 42, 3, -1, 1),
    Sketcher.Constraint("Symmetric", 7, 3, 43, 3, -1, 1),
    Sketcher.Constraint("Symmetric", 8, 3, 44, 3, -1, 1),
    Sketcher.Constraint("Symmetric", 9, 3, 45, 3, -1, 1),
    Sketcher.Constraint("Symmetric", 10, 3, 46, 3, -1, 1),
    Sketcher.Constraint("Symmetric", 11, 3, 47, 3, -1, 1),
    Sketcher.Constraint("Symmetric", 12, 3, 48, 3, -1, 1),
    Sketcher.Constraint("Symmetric", 13, 3, 49, 3, -1, 1),
    Sketcher.Constraint("Symmetric", 14, 3, 50, 3, -1, 1),
    Sketcher.Constraint("Symmetric", 15, 3, 51, 3, -1, 1),
    Sketcher.Constraint("Symmetric", 16, 3, 52, 3, -1, 1),
    Sketcher.Constraint("Symmetric", 17, 3, 53, 3, -1, 1),
    Sketcher.Constraint("Symmetric", 18, 3, 54, 3, -1, 1),
    Sketcher.Constraint("Symmetric", 19, 3, 55, 3, -1, 1),
    Sketcher.Constraint("Symmetric", 20, 3, 56, 3, -1, 1),
    Sketcher.Constraint("Symmetric", 27, 3, 57, 3, -1, 1),
    Sketcher.Constraint("Symmetric", 28, 3, 58, 3, -1, 1),
    Sketcher.Constraint("Symmetric", 29, 3, 59, 3, -1, 1),
    Sketcher.Constraint("Symmetric", 30, 3, 60, 3, -1, 1),
    Sketcher.Constraint("Symmetric", 31, 3, 61, 3, -1, 1),
    Sketcher.Constraint("Symmetric", 32, 3, 62, 3, -1, 1),
    Sketcher.Constraint("Symmetric", 33, 3, 63, 3, -1, 1),
    Sketcher.Constraint("Symmetric", 34, 3, 64, 3, -1, 1),
    Sketcher.Constraint("Symmetric", 35, 3, 65, 3, -1, 1),
    Sketcher.Constraint("Symmetric", 36, 3, 66, 3, -1, 1),
    Sketcher.Constraint("Symmetric", 37, 3, 67, 3, -1, 1),
    Sketcher.Constraint("Symmetric", 38, 3, 68, 3, -1, 1),
    Sketcher.Constraint("Symmetric", 39, 3, 69, 3, -1, 1),
    Sketcher.Constraint("Symmetric", 40, 3, 70, 3, -1, 1),
    Sketcher.Constraint("Symmetric", 41, 3, 71, 3, -1, 1),
    Sketcher.Constraint("Symmetric", 5, 3, 72, 3, -1, 1),
    Sketcher.Constraint("Symmetric", 4, 3, 73, 3, -1, 1),
    Sketcher.Constraint("Symmetric", 3, 3, 74, 3, -1, 1),
    Sketcher.Constraint("Symmetric", 2, 3, 75, 3, -1, 1),
    Sketcher.Constraint("Symmetric", 1, 3, 76, 3, -1, 1),
    Sketcher.Constraint("Symmetric", 41, 3, 42, 3, -2),
    Sketcher.Constraint("Symmetric", 40, 3, 43, 3, -2),
    Sketcher.Constraint("Symmetric", 39, 3, 44, 3, -2),
    Sketcher.Constraint("Symmetric", 38, 3, 45, 3, -2),
    Sketcher.Constraint("Symmetric", 37, 3, 46, 3, -2),
    Sketcher.Constraint("Symmetric", 36, 3, 47, 3, -2),
    Sketcher.Constraint("Symmetric", 35, 3, 48, 3, -2),
    Sketcher.Constraint("Symmetric", 34, 3, 49, 3, -2),
    Sketcher.Constraint("Symmetric", 33, 3, 50, 3, -2),
    Sketcher.Constraint("Symmetric", 32, 3, 51, 3, -2),
    Sketcher.Constraint("Symmetric", 31, 3, 52, 3, -2),
    Sketcher.Constraint("Symmetric", 30, 3, 53, 3, -2),
    Sketcher.Constraint("Symmetric", 29, 3, 54, 3, -2),
    Sketcher.Constraint("Symmetric", 28, 3, 55, 3, -2),
    Sketcher.Constraint("Symmetric", 27, 3, 56, 3, -2),
    Sketcher.Constraint("PointOnObject", 1, 3, -1),
    Sketcher.Constraint("PointOnObject", 2, 3, -1),
    Sketcher.Constraint("PointOnObject", 3, 3, -1),
    Sketcher.Constraint("PointOnObject", 4, 3, -1),
    Sketcher.Constraint("PointOnObject", 5, 3, -1),
    Sketcher.Constraint("PointOnObject", 21, 3, -2),
    Sketcher.Constraint("PointOnObject", 22, 3, -2),
    Sketcher.Constraint("PointOnObject", 23, 3, -2),
    Sketcher.Constraint("Horizontal", 6, 3, 7, 3),
    Sketcher.Constraint("Horizontal", 7, 3, 8, 3),
    Sketcher.Constraint("Horizontal", 8, 3, 9, 3),
    Sketcher.Constraint("Horizontal", 9, 3, 10, 3),
    Sketcher.Constraint("Horizontal", 11, 3, 12, 3),
    Sketcher.Constraint("Horizontal", 12, 3, 13, 3),
    Sketcher.Constraint("Horizontal", 13, 3, 14, 3),
    Sketcher.Constraint("Horizontal", 14, 3, 15, 3),
    Sketcher.Constraint("Horizontal", 16, 3, 17, 3),
    Sketcher.Constraint("Horizontal", 17, 3, 18, 3),
    Sketcher.Constraint("Horizontal", 18, 3, 19, 3),
    Sketcher.Constraint("Horizontal", 19, 3, 20, 3),
    Sketcher.Constraint("Horizontal", 10, 3, 21, 3),
    Sketcher.Constraint("Horizontal", 15, 3, 22, 3),
    Sketcher.Constraint("Horizontal", 20, 3, 23, 3),
    Sketcher.Constraint("Vertical", 1, 3, 6, 3),
    Sketcher.Constraint("Vertical", 2, 3, 7, 3),
    Sketcher.Constraint("Vertical", 3, 3, 8, 3),
    Sketcher.Constraint("Vertical", 4, 3, 9, 3),
    Sketcher.Constraint("Vertical", 5, 3, 10, 3),
    Sketcher.Constraint("Vertical", 6, 3, 11, 3),
    Sketcher.Constraint("Vertical", 7, 3, 12, 3),
    Sketcher.Constraint("Vertical", 8, 3, 13, 3),
    Sketcher.Constraint("Vertical", 9, 3, 14, 3),
    Sketcher.Constraint("Vertical", 10, 3, 15, 3),
    Sketcher.Constraint("Vertical", 11, 3, 16, 3),
    Sketcher.Constraint("Vertical", 12, 3, 17, 3),
    Sketcher.Constraint("Vertical", 13, 3, 18, 3),
    Sketcher.Constraint("Vertical", 14, 3, 19, 3),
    Sketcher.Constraint("Vertical", 15, 3, 20, 3),
    Sketcher.Constraint("Diameter", 0, 6.5),
    Sketcher.Constraint("DistanceX", -1, 1, 1, 3, 10.0),
    Sketcher.Constraint("DistanceX", -1, 1, 2, 3, 20.0),
    Sketcher.Constraint("DistanceX", -1, 1, 3, 3, 30.0),
    Sketcher.Constraint("DistanceX", -1, 1, 4, 3, 40.0),
    Sketcher.Constraint("DistanceX", -1, 1, 5, 3, 50.0),
    Sketcher.Constraint("DistanceY", -1, 1, 6, 3, 10.0),
    Sketcher.Constraint("DistanceY", -1, 1, 11, 3, 20.0),
    Sketcher.Constraint("DistanceY", -1, 1, 16, 3, 30.0),
])
pocket4 = body.newObject("PartDesign::Pocket", "Pocket003")
pocket4.Profile = sketch8
pocket4.Length = 1

sketch9 = body.newObject("Sketcher::SketchObject", "Sketch008")
sketch9.AttachmentSupport = (doc.getObject("XZ_Plane"), [""])
sketch9.MapMode = "FlatFace"
sketch9.AttachmentOffset = App.Placement(Vector(0, 0, -7), App.Rotation())
sketch9.addGeometry([
    Part.LineSegment(Vector(33.9, 15, 0), Vector(33.9, 35, 0)),
    Part.LineSegment(Vector(33.9, 35, 0), Vector(53.9, 35, 0)),
    Part.LineSegment(Vector(53.9, 35, 0), Vector(53.9, 15, 0)),
    Part.LineSegment(Vector(53.9, 15, 0), Vector(33.9, 15, 0)),
], False)
sketch9.addConstraint([
    Sketcher.Constraint("Coincident", 0, 2, 1, 1),
    Sketcher.Constraint("Coincident", 1, 2, 2, 1),
    Sketcher.Constraint("Coincident", 2, 2, 3, 1),
    Sketcher.Constraint("Coincident", 3, 2, 0, 1),
    Sketcher.Constraint("Vertical", 0),
    Sketcher.Constraint("Horizontal", 1),
    Sketcher.Constraint("Vertical", 2),
    Sketcher.Constraint("Horizontal", 3),
    Sketcher.Constraint("Equal", 3, 0),
    Sketcher.Constraint("DistanceX", 1, 1, 1, 2, 20.0),
    Sketcher.Constraint("DistanceY", -1, 1, 0, 2, 35.0),
    Sketcher.Constraint("DistanceX", -1, 1, 0, 2, 33.9),
])
pad3 = body.newObject("PartDesign::Pad", "Pad002")
pad3.Profile = sketch9
pad3.Length = 2

sketch10 = body.newObject("Sketcher::SketchObject", "Sketch009")
sketch10.AttachmentSupport = (doc.getObject("XZ_Plane"), [""])
sketch10.MapMode = "FlatFace"
sketch10.AttachmentOffset = App.Placement(Vector(0, 0, -5), App.Rotation())
sketch10.addGeometry(Part.Circle(Vector(43.9, 25, 0), Vector(0, 0, 1), 3.3), False)
sketch10.addConstraint([
    Sketcher.Constraint("Diameter", 0, 6.6),
    Sketcher.Constraint("DistanceY", -1, 1, 0, 3, 25.0),
    Sketcher.Constraint("DistanceX", -1, 1, 0, 3, 43.9),
])
pocket5 = body.newObject("PartDesign::Pocket", "Pocket004")
pocket5.Profile = sketch10
pocket5.Type = "ThroughAll"

doc.recompute()
